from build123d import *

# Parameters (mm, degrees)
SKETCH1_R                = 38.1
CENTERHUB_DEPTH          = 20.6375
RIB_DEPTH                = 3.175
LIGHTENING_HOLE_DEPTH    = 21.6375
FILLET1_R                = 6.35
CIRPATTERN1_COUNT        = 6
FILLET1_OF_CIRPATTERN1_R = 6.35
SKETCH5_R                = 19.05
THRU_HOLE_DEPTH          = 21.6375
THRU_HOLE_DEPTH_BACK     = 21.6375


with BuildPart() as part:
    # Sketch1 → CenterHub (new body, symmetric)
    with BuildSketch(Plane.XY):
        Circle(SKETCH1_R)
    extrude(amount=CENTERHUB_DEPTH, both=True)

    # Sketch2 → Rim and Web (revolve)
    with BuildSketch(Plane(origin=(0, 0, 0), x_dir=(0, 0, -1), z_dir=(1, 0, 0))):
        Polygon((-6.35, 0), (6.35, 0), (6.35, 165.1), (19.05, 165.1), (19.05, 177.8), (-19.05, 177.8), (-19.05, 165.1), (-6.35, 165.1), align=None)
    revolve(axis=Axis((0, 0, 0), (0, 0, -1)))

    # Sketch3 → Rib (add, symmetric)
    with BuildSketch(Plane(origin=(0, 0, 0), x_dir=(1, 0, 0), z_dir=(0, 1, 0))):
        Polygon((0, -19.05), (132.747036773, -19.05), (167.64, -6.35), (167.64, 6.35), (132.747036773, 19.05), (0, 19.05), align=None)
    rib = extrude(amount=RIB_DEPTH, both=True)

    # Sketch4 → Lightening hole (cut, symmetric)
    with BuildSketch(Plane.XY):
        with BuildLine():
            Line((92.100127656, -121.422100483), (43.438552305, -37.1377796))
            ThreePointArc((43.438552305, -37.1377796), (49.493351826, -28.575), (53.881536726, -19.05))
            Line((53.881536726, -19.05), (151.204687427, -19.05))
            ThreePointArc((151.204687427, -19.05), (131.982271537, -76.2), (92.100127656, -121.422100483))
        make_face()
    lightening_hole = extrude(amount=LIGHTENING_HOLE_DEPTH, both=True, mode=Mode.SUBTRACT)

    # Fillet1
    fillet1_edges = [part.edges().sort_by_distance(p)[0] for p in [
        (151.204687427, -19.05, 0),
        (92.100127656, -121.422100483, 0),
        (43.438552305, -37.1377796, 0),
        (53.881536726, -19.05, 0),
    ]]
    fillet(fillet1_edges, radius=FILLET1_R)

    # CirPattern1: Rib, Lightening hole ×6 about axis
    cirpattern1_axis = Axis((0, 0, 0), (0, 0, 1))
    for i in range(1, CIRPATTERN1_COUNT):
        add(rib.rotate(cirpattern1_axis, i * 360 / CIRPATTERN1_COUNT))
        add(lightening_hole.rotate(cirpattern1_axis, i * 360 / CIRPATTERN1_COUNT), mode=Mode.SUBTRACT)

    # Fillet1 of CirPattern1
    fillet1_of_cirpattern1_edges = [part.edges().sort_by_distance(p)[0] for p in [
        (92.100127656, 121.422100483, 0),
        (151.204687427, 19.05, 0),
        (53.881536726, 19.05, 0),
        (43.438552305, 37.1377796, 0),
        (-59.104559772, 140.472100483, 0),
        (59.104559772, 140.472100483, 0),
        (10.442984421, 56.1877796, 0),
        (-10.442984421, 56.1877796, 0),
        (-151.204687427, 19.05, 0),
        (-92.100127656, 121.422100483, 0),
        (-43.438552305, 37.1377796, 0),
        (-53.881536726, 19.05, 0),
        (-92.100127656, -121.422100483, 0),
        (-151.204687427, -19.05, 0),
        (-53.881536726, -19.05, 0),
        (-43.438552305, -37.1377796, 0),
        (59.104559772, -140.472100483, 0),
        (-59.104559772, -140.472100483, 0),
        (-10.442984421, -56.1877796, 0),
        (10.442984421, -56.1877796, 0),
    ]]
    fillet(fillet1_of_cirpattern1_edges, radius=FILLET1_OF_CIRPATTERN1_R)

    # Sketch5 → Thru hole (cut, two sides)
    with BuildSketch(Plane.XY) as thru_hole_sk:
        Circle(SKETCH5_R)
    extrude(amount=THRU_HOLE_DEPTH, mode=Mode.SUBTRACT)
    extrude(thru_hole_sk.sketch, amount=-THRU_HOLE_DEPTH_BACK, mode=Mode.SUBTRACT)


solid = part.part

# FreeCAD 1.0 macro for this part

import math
import FreeCAD as App
import Part
import Sketcher
from FreeCAD import Vector
Q = App.Units.Quantity


def edges_at(feature, points):
    """Names of the edges that pass closest to the given points."""
    edges = feature.Shape.Edges
    near = lambda p: min(range(len(edges)), key=lambda i: edges[i].distToShape(Part.Vertex(*p))[0])
    return sorted({f"Edge{near(p) + 1}" for p in points})

doc = App.newDocument("Part")
body = doc.addObject("PartDesign::Body", "Body")

# Sketch on XY plane
sketch1 = doc.addObject("Sketcher::SketchObject", "Sketch")
body.addObject(sketch1)
sketch1.AttachmentSupport = (doc.XY_Plane, [""])
sketch1.MapMode = "FlatFace"
sketch1.addGeometry(Part.Circle(Vector(0, 0, 0), Vector(0, 0, 1), 38), False)
sketch1.addConstraint([
    Sketcher.Constraint("Coincident", 0, 3, -1, 1),
    Sketcher.Constraint("Diameter", 0, Q("3 in")),
])
pad1 = doc.addObject("PartDesign::Pad", "Pad")
body.addObject(pad1)
pad1.Profile = sketch1
pad1.Length = Q("1.625 in")
pad1.Midplane = True

# Sketch on YZ plane
sketch2 = doc.addObject("Sketcher::SketchObject", "Sketch001")
body.addObject(sketch2)
sketch2.AttachmentSupport = (doc.YZ_Plane, [""])
sketch2.MapMode = "FlatFace"
sketch2.addGeometry([
    Part.LineSegment(Vector(0, 6, 0), Vector(0, -6, 0)),  # 0
    Part.LineSegment(Vector(0, -6, 0), Vector(165, -6, 0)),  # 1
    Part.LineSegment(Vector(165, -6, 0), Vector(165, -19, 0)),  # 2
    Part.LineSegment(Vector(165, -19, 0), Vector(178, -19, 0)),  # 3
    Part.LineSegment(Vector(178, -19, 0), Vector(178, 19, 0)),  # 4
    Part.LineSegment(Vector(178, 19, 0), Vector(165, 19, 0)),  # 5
    Part.LineSegment(Vector(165, 19, 0), Vector(165, 6, 0)),  # 6
    Part.LineSegment(Vector(165, 6, 0), Vector(0, 6, 0)),  # 7
], False)
sketch2.addConstraint([
    Sketcher.Constraint("Coincident", 0, 2, 1, 1),
    Sketcher.Constraint("Coincident", 1, 2, 2, 1),
    Sketcher.Constraint("Coincident", 2, 2, 3, 1),
    Sketcher.Constraint("Coincident", 3, 2, 4, 1),
    Sketcher.Constraint("Coincident", 4, 2, 5, 1),
    Sketcher.Constraint("Coincident", 5, 2, 6, 1),
    Sketcher.Constraint("Coincident", 6, 2, 7, 1),
    Sketcher.Constraint("Coincident", 7, 2, 0, 1),
    Sketcher.Constraint("Vertical", 0),
    Sketcher.Constraint("Horizontal", 1),
    Sketcher.Constraint("Vertical", 2),
    Sketcher.Constraint("Horizontal", 3),
    Sketcher.Constraint("Vertical", 4),
    Sketcher.Constraint("Horizontal", 5),
    Sketcher.Constraint("Vertical", 6),
    Sketcher.Constraint("Horizontal", 7),
    Sketcher.Constraint("Symmetric", 0, 2, 7, 2, -1, 1),
    Sketcher.Constraint("Symmetric", 2, 2, 5, 2, -1),
    Sketcher.Constraint("Equal", 5, 0),
    Sketcher.Constraint("Equal", 0, 2),
    Sketcher.Constraint("DistanceX", 1, 1, 1, 2, Q("6.5 in")),
    Sketcher.Constraint("DistanceX", 3, 1, 3, 2, Q("0.5 in")),
])
revolution = doc.addObject("PartDesign::Revolution", "Revolution")
body.addObject(revolution)
revolution.Profile = sketch2
revolution.ReferenceAxis = (sketch2, ["V_Axis"])
revolution.Angle = 360

# Sketch on XZ plane
sketch3 = doc.addObject("Sketcher::SketchObject", "Sketch002")
body.addObject(sketch3)
sketch3.AttachmentSupport = (doc.XZ_Plane, [""])
sketch3.MapMode = "FlatFace"
sketch3.addGeometry([
    Part.LineSegment(Vector(0, 19, 0), Vector(133, 19, 0)),  # 0
    Part.LineSegment(Vector(133, 19, 0), Vector(168, 6, 0)),  # 1
    Part.LineSegment(Vector(168, 6, 0), Vector(168, -6, 0)),  # 2
    Part.LineSegment(Vector(168, -6, 0), Vector(133, -19, 0)),  # 3
    Part.LineSegment(Vector(133, -19, 0), Vector(0, -19, 0)),  # 4
    Part.LineSegment(Vector(0, -19, 0), Vector(0, 19, 0)),  # 5
], False)
sketch3.addConstraint([
    Sketcher.Constraint("Coincident", 0, 2, 1, 1),
    Sketcher.Constraint("Coincident", 1, 2, 2, 1),
    Sketcher.Constraint("Coincident", 2, 2, 3, 1),
    Sketcher.Constraint("Coincident", 3, 2, 4, 1),
    Sketcher.Constraint("Coincident", 4, 2, 5, 1),
    Sketcher.Constraint("Coincident", 5, 2, 0, 1),
    Sketcher.Constraint("Horizontal", 0),
    Sketcher.Constraint("Vertical", 2),
    Sketcher.Constraint("Horizontal", 4),
    Sketcher.Constraint("Vertical", 5),
    Sketcher.Constraint("Symmetric", 4, 2, 5, 2, -1, 1),
    Sketcher.Constraint("Vertical", 0, 2, 3, 2),
    Sketcher.Constraint("Equal", 1, 3),
    Sketcher.Constraint("DistanceY", 2, 2, 2, 1, Q("0.5 in")),
    Sketcher.Constraint("DistanceY", 5, 1, 5, 2, Q("1.5 in")),
    Sketcher.Constraint("Angle", 1, Q("-20 deg")),
    Sketcher.Constraint("DistanceX", -1, 1, 1, 2, Q("6.6 in")),
])
pad2 = doc.addObject("PartDesign::Pad", "Pad001")
body.addObject(pad2)
pad2.Profile = sketch3
pad2.Length = Q("0.25 in")
pad2.Midplane = True

# Sketch on XY plane
sketch4 = doc.addObject("Sketcher::SketchObject", "Sketch003")
body.addObject(sketch4)
sketch4.AttachmentSupport = (doc.XY_Plane, [""])
sketch4.MapMode = "FlatFace"
sketch4.addGeometry([
    Part.LineSegment(Vector(43, -37, 0), Vector(92, -121, 0)),
    Part.ArcOfCircle(Part.Circle(Vector(0, 0, 0), Vector(0, 0, 1), 152), math.radians(-53), math.radians(-7)),
    Part.LineSegment(Vector(151, -19, 0), Vector(54, -19, 0)),
    Part.ArcOfCircle(Part.Circle(Vector(0, 0, 0), Vector(0, 0, 1), 57), math.radians(-41), math.radians(-19)),
], False)
sketch4.addConstraint([
    Sketcher.Constraint("Coincident", 0, 2, 1, 1),
    Sketcher.Constraint("Coincident", 1, 2, 2, 1),
    Sketcher.Constraint("Coincident", 2, 2, 3, 2),
    Sketcher.Constraint("Coincident", 3, 1, 0, 1),
    Sketcher.Constraint("Horizontal", 2),
    Sketcher.Constraint("Coincident", 1, 3, -1, 1),
    Sketcher.Constraint("Coincident", 3, 3, -1, 1),
    Sketcher.Constraint("Radius", 1, Q("6 in")),
    Sketcher.Constraint("Radius", 3, Q("2.25 in")),
    Sketcher.Constraint("Angle", 0, Q("-60 deg")),
    Sketcher.Constraint("DistanceY", 1, 2, -1, 1, Q("0.75 in")),
    Sketcher.Constraint("DistanceY", 0, 2, -1, 1, Q("121.4221 mm")),
])
pocket1 = doc.addObject("PartDesign::Pocket", "Pocket")
body.addObject(pocket1)
pocket1.Profile = sketch4
pocket1.Length = 43.275
pocket1.Midplane = True
doc.recompute()

fillet = doc.addObject("PartDesign::Fillet", "Fillet")
body.addObject(fillet)
fillet.Base = (pocket1, edges_at(pocket1, [
    (151.205, -19.05, 0),
    (92.1, -121.422, 0),
    (43.439, -37.138, 0),
    (53.882, -19.05, 0),
]))
fillet.Radius = Q("0.25 in")
doc.recompute()

polarpattern = doc.addObject("PartDesign::PolarPattern", "PolarPattern")
body.addObject(polarpattern)
polarpattern.Originals = [pad2, pocket1]
polarpattern.Axis = (doc.Z_Axis, [""])
polarpattern.Angle = 360
polarpattern.Occurrences = 6
body.Tip = polarpattern
doc.recompute()

fillet2 = doc.addObject("PartDesign::Fillet", "Fillet001")
body.addObject(fillet2)
fillet2.Base = (polarpattern, edges_at(polarpattern, [
    (92.1, 121.422, 0),
    (151.205, 19.05, 0),
    (53.882, 19.05, 0),
    (43.439, 37.138, 0),
    (-59.105, 140.472, 0),
    (59.105, 140.472, 0),
    (10.443, 56.188, 0),
    (-10.443, 56.188, 0),
    (-151.205, 19.05, 0),
    (-92.1, 121.422, 0),
    (-43.439, 37.138, 0),
    (-53.882, 19.05, 0),
    (-92.1, -121.422, 0),
    (-151.205, -19.05, 0),
    (-53.882, -19.05, 0),
    (-43.439, -37.138, 0),
    (59.105, -140.472, 0),
    (-59.105, -140.472, 0),
    (-10.443, -56.188, 0),
    (10.443, -56.188, 0),
]))
fillet2.Radius = Q("0.25 in")

# Sketch on XY plane
sketch5 = doc.addObject("Sketcher::SketchObject", "Sketch004")
body.addObject(sketch5)
sketch5.AttachmentSupport = (doc.XY_Plane, [""])
sketch5.MapMode = "FlatFace"
sketch5.addGeometry(Part.Circle(Vector(0, 0, 0), Vector(0, 0, 1), 19), False)
sketch5.addConstraint([
    Sketcher.Constraint("Coincident", 0, 3, -1, 1),
    Sketcher.Constraint("Diameter", 0, Q("1.5 in")),
])
pocket2 = doc.addObject("PartDesign::Pocket", "Pocket001")
body.addObject(pocket2)
pocket2.Profile = sketch5
pocket2.Type = "ThroughAll"
pocket2.Midplane = True

doc.recompute()
